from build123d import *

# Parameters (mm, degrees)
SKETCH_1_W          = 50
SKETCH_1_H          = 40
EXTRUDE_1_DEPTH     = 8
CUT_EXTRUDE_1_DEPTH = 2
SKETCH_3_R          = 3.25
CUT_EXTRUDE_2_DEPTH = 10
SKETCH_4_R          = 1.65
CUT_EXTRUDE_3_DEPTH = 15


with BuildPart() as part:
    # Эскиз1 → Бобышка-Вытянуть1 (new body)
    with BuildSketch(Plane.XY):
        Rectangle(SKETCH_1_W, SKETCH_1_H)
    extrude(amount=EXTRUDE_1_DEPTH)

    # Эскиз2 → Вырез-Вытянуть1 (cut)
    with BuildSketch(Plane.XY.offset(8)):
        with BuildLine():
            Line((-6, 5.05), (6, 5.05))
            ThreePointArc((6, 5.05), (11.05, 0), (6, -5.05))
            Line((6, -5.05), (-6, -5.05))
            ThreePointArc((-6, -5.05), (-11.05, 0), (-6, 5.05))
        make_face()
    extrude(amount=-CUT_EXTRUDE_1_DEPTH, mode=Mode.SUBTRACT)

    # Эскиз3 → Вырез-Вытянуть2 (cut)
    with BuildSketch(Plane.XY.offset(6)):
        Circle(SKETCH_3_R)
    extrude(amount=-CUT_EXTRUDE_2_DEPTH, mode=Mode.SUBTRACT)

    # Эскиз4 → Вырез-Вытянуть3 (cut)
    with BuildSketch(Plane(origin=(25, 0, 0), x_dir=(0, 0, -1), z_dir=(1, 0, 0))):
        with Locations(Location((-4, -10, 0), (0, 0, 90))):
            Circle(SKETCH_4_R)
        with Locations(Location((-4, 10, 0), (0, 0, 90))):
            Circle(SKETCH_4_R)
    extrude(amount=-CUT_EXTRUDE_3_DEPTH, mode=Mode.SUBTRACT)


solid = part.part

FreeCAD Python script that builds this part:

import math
import FreeCAD as App
import Part
import Sketcher
from FreeCAD import Vector
Q = App.Units.Quantity


def add_polygon(sketch, points):
    """Adds a closed chain of lines whose ends are joined by coincident constraints."""
    first, n = sketch.GeometryCount, len(points)
    for a, b in zip(points, points[1:] + points[:1]):
        sketch.addGeometry(Part.LineSegment(App.Vector(*a, 0), App.Vector(*b, 0)), False)
    for i in range(n):
        sketch.addConstraint(Sketcher.Constraint("Coincident", first + i, 2, first + (i + 1) % n, 1))

doc = App.newDocument("Part")
body = doc.addObject("PartDesign::Body", "Body")

# Sketch on XY plane
sketch1 = doc.addObject("Sketcher::SketchObject", "Sketch")
body.addObject(sketch1)
sketch1.AttachmentSupport = (doc.XY_Plane, [""])
sketch1.MapMode = "FlatFace"
add_polygon(sketch1, [(-25, 20), (-25, -20), (25, -20), (25, 20)])  # lines 0-3
sketch1.addConstraint(Sketcher.Constraint("Vertical", 0))
sketch1.addConstraint(Sketcher.Constraint("Horizontal", 1))
sketch1.addConstraint(Sketcher.Constraint("Vertical", 2))
sketch1.addConstraint(Sketcher.Constraint("Horizontal", 3))
sketch1.addConstraint(Sketcher.Constraint("Symmetric", 0, 2, 2, 2, -1, 1))
sketch1.addConstraint(Sketcher.Constraint("DistanceX", 1, 1, 1, 2, Q("50 mm")))
sketch1.addConstraint(Sketcher.Constraint("DistanceY", 0, 2, 0, 1, Q("40 mm")))
pad1 = doc.addObject("PartDesign::Pad", "Pad")
body.addObject(pad1)
pad1.Profile = sketch1
pad1.Length = 8

# Sketch on XY plane
sketch2 = doc.addObject("Sketcher::SketchObject", "Sketch001")
body.addObject(sketch2)
sketch2.AttachmentSupport = (doc.XY_Plane, [""])
sketch2.MapMode = "FlatFace"
sketch2.AttachmentOffset = App.Placement(Vector(0, 0, 8), App.Rotation())
sketch2.addGeometry(Part.LineSegment(Vector(6, 5.05, 0), Vector(-6, 5.05, 0)), False)
sketch2.addGeometry(Part.ArcOfCircle(Part.Circle(Vector(-6, 0, 0), Vector(0, 0, 1), 5.05), math.radians(90), math.radians(270)), False)
sketch2.addGeometry(Part.LineSegment(Vector(-6, -5.05, 0), Vector(6, -5.05, 0)), False)
sketch2.addGeometry(Part.ArcOfCircle(Part.Circle(Vector(6, 0, 0), Vector(0, 0, 1), 5.05), math.radians(-90), math.radians(90)), False)
sketch2.addConstraint(Sketcher.Constraint("Tangent", 0, 2, 1, 1))
sketch2.addConstraint(Sketcher.Constraint("Tangent", 1, 2, 2, 1))
sketch2.addConstraint(Sketcher.Constraint("Tangent", 2, 2, 3, 1))
sketch2.addConstraint(Sketcher.Constraint("Tangent", 3, 2, 0, 1))
sketch2.addConstraint(Sketcher.Constraint("Horizontal", 0))
sketch2.addConstraint(Sketcher.Constraint("Horizontal", 2))
sketch2.addConstraint(Sketcher.Constraint("Symmetric", 1, 3, 3, 3, -1, 1))
sketch2.addConstraint(Sketcher.Constraint("DistanceX", 0, 2, 0, 1, Q("12 mm")))
sketch2.addConstraint(Sketcher.Constraint("Radius", 1, Q("5.05 mm")))
pocket1 = doc.addObject("PartDesign::Pocket", "Pocket")
body.addObject(pocket1)
pocket1.Profile = sketch2
pocket1.Length = 2

# Sketch on XY plane
sketch3 = doc.addObject("Sketcher::SketchObject", "Sketch002")
body.addObject(sketch3)
sketch3.AttachmentSupport = (doc.XY_Plane, [""])
sketch3.MapMode = "FlatFace"
sketch3.AttachmentOffset = App.Placement(Vector(0, 0, 6), App.Rotation())
sketch3.addGeometry(Part.Circle(Vector(0, 0, 0), Vector(0, 0, 1), 3.25), False)
sketch3.addConstraint(Sketcher.Constraint("Coincident", 0, 3, -1, 1))
sketch3.addConstraint(Sketcher.Constraint("Diameter", 0, Q("6.5 mm")))
pocket2 = doc.addObject("PartDesign::Pocket", "Pocket001")
body.addObject(pocket2)
pocket2.Profile = sketch3
pocket2.Length = 10

# Sketch on YZ plane
sketch4 = doc.addObject("Sketcher::SketchObject", "Sketch003")
body.addObject(sketch4)
sketch4.AttachmentSupport = (doc.YZ_Plane, [""])
sketch4.MapMode = "FlatFace"
sketch4.AttachmentOffset = App.Placement(Vector(0, 0, 25), App.Rotation())
sketch4.addGeometry(Part.Circle(Vector(-10, 4, 0), Vector(0, 0, 1), 1.65), False)
sketch4.addGeometry(Part.Circle(Vector(10, 4, 0), Vector(0, 0, 1), 1.65), False)
sketch4.addConstraint(Sketcher.Constraint("Equal", 0, 1))
sketch4.addConstraint(Sketcher.Constraint("Symmetric", 0, 3, 1, 3, -2))
sketch4.addConstraint(Sketcher.Constraint("Diameter", 0, Q("3.3 mm")))
sketch4.addConstraint(Sketcher.Constraint("DistanceX", 0, 3, -1, 1, Q("10 mm")))
sketch4.addConstraint(Sketcher.Constraint("DistanceY", -1, 1, 0, 3, Q("4 mm")))
pocket3 = doc.addObject("PartDesign::Pocket", "Pocket002")
body.addObject(pocket3)
pocket3.Profile = sketch4
pocket3.Length = 15

doc.recompute()
